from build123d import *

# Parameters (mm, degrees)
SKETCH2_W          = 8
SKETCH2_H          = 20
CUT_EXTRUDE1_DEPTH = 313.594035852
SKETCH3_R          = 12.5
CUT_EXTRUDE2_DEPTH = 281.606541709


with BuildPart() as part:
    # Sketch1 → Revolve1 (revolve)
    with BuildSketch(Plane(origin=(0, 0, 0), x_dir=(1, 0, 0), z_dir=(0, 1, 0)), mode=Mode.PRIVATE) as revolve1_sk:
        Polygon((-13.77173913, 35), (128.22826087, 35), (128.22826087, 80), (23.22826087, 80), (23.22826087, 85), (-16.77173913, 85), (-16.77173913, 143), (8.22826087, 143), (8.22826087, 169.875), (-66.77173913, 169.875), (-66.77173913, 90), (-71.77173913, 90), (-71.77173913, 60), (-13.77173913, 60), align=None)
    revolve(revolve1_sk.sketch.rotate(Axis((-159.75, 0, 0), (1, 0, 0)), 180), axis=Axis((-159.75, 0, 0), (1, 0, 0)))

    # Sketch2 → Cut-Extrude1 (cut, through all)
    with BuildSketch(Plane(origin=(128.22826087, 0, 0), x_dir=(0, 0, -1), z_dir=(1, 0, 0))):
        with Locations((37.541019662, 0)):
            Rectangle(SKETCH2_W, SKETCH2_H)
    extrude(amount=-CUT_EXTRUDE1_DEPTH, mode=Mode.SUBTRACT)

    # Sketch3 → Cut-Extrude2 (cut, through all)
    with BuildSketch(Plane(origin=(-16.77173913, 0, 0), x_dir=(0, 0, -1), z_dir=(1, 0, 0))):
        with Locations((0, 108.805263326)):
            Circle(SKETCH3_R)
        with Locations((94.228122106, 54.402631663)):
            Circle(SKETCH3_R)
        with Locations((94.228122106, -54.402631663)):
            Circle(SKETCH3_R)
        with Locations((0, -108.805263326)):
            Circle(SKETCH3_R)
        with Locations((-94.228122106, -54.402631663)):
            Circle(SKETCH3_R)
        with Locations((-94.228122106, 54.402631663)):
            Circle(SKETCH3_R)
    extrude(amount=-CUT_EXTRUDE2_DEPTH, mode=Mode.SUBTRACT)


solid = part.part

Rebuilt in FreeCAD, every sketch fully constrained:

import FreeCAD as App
import Part
import Sketcher
from FreeCAD import Vector
Q = App.Units.Quantity


def add_polygon(sketch, points):
    """Adds a closed chain of lines whose ends are joined by coincident constraints."""
    first, n = sketch.GeometryCount, len(points)
    for a, b in zip(points, points[1:] + points[:1]):
        sketch.addGeometry(Part.LineSegment(App.Vector(*a, 0), App.Vector(*b, 0)), False)
    for i in range(n):
        sketch.addConstraint(Sketcher.Constraint("Coincident", first + i, 2, first + (i + 1) % n, 1))

doc = App.newDocument("Part")
params = doc.addObject("Spreadsheet::Sheet", "Params")
for row, (alias, value) in enumerate([
    ("sketch1_width", "142 mm"),
    ("sketch1_width2", "105 mm"),
    ("sketch1_width3", "40 mm"),
    ("sketch1_width4", "25 mm"),
    ("sketch1_width5", "75 mm"),
    ("revolution_angle", "360 deg"),
    ("sketch2_width", "20 mm"),
    ("sketch2_height", "8 mm"),
    ("sketch3_diameter", "25 mm"),
], start=1):
    params.set(f"A{row}", alias)
    params.set(f"B{row}", "=" + value)
    params.setAlias(f"B{row}", alias)

body = doc.addObject("PartDesign::Body", "Body")

sketch1 = body.newObject("Sketcher::SketchObject", "Sketch")
sketch1.AttachmentSupport = (doc.getObject("XZ_Plane"), [""])
sketch1.MapMode = "FlatFace"
add_polygon(sketch1, [(-14, -35), (128, -35), (128, -80), (23, -80), (23, -85), (-17, -85), (-17, -143), (8, -143), (8, -170), (-67, -170), (-67, -90), (-72, -90), (-72, -60), (-14, -60)])
sketch1.addConstraint([
    Sketcher.Constraint("Horizontal", 0),
    Sketcher.Constraint("Vertical", 1),
    Sketcher.Constraint("Horizontal", 2),
    Sketcher.Constraint("Vertical", 3),
    Sketcher.Constraint("Horizontal", 4),
    Sketcher.Constraint("Vertical", 5),
    Sketcher.Constraint("Horizontal", 6),
    Sketcher.Constraint("Vertical", 7),
    Sketcher.Constraint("Horizontal", 8),
    Sketcher.Constraint("Vertical", 9),
    Sketcher.Constraint("Horizontal", 10),
    Sketcher.Constraint("Vertical", 11),
    Sketcher.Constraint("Horizontal", 12),
    Sketcher.Constraint("Vertical", 13),
    Sketcher.Constraint("Equal", 10, 3),
    Sketcher.Constraint("Equal", 12, 5),
    Sketcher.Constraint("Equal", 6, 13),
    Sketcher.Constraint("DistanceX", 0, 1, 0, 2, Q("142 mm")),
    Sketcher.Constraint("DistanceX", 2, 2, 2, 1, Q("105 mm")),
    Sketcher.Constraint("DistanceX", 4, 2, 4, 1, Q("40 mm")),
    Sketcher.Constraint("DistanceX", 6, 1, 6, 2, Q("25 mm")),
    Sketcher.Constraint("DistanceX", 8, 2, 8, 1, Q("75 mm")),
    Sketcher.Constraint("DistanceX", 10, 2, 10, 1, Q("5 mm")),
    Sketcher.Constraint("DistanceY", 1, 2, 1, 1, Q("45 mm")),
    Sketcher.Constraint("DistanceY", 11, 1, 11, 2, Q("30 mm")),
    Sketcher.Constraint("DistanceY", 0, 2, -1, 1, Q("35 mm")),
    Sketcher.Constraint("DistanceY", 7, 2, 7, 1, Q("26.875 mm")),
    Sketcher.Constraint("DistanceX", -1, 1, 0, 2, Q("128.228261 mm")),
])
sketch1.setExpression("Constraints[31]", "Params.sketch1_width")
sketch1.setExpression("Constraints[32]", "Params.sketch1_width2")
sketch1.setExpression("Constraints[33]", "Params.sketch1_width3")
sketch1.setExpression("Constraints[34]", "Params.sketch1_width4")
sketch1.setExpression("Constraints[35]", "Params.sketch1_width5")
revolution = body.newObject("PartDesign::Revolution", "Revolution")
revolution.Profile = sketch1
revolution.ReferenceAxis = (sketch1, ["H_Axis"])
revolution.setExpression("Angle", "Params.revolution_angle")

sketch2 = body.newObject("Sketcher::SketchObject", "Sketch001")
sketch2.AttachmentSupport = (doc.getObject("YZ_Plane"), [""])
sketch2.MapMode = "FlatFace"
sketch2.AttachmentOffset = App.Placement(Vector(0, 0, 128.228261), App.Rotation())
add_polygon(sketch2, [(10, -34), (-10, -34), (-10, -42), (10, -42)])
sketch2.addConstraint([
    Sketcher.Constraint("Horizontal", 0),
    Sketcher.Constraint("Vertical", 1),
    Sketcher.Constraint("Horizontal", 2),
    Sketcher.Constraint("Vertical", 3),
    Sketcher.Constraint("DistanceX", 0, 2, 0, 1, Q("20 mm")),
    Sketcher.Constraint("DistanceY", 1, 2, 1, 1, Q("8 mm")),
    Sketcher.Constraint("DistanceX", 0, 2, -1, 1, Q("10 mm")),
    Sketcher.Constraint("DistanceY", 0, 2, -1, 1, Q("33.54102 mm")),
])
sketch2.setExpression("Constraints[8]", "Params.sketch2_width")
sketch2.setExpression("Constraints[9]", "Params.sketch2_height")
pocket1 = body.newObject("PartDesign::Pocket", "Pocket")
pocket1.Profile = sketch2
pocket1.Type = "ThroughAll"

sketch3 = body.newObject("Sketcher::SketchObject", "Sketch002")
sketch3.AttachmentSupport = (doc.getObject("YZ_Plane"), [""])
sketch3.MapMode = "FlatFace"
sketch3.AttachmentOffset = App.Placement(Vector(0, 0, -16.771739), App.Rotation())
sketch3.addGeometry([
    Part.Circle(Vector(109, 0, 0), Vector(0, 0, 1), 12),
    Part.Circle(Vector(54, -94, 0), Vector(0, 0, 1), 12),
    Part.Circle(Vector(-54, -94, 0), Vector(0, 0, 1), 12),
    Part.Circle(Vector(-109, 0, 0), Vector(0, 0, 1), 12),
    Part.Circle(Vector(-54, 94, 0), Vector(0, 0, 1), 12),
    Part.Circle(Vector(54, 94, 0), Vector(0, 0, 1), 12),
], False)
sketch3.addConstraint([
    Sketcher.Constraint("Equal", 0, 1),
    Sketcher.Constraint("Equal", 1, 2),
    Sketcher.Constraint("Equal", 2, 3),
    Sketcher.Constraint("Equal", 3, 4),
    Sketcher.Constraint("Equal", 4, 5),
    Sketcher.Constraint("Symmetric", 0, 3, 3, 3, -1, 1),
    Sketcher.Constraint("Symmetric", 1, 3, 4, 3, -1, 1),
    Sketcher.Constraint("Symmetric", 2, 3, 5, 3, -1, 1),
    Sketcher.Constraint("Symmetric", 1, 3, 2, 3, -2),
    Sketcher.Constraint("PointOnObject", 0, 3, -1),
    Sketcher.Constraint("Diameter", 0, Q("25 mm")),
    Sketcher.Constraint("DistanceX", -1, 1, 1, 3, Q("54.402632 mm")),
    Sketcher.Constraint("DistanceX", 1, 3, 0, 3, Q("54.402632 mm")),
    Sketcher.Constraint("DistanceY", 1, 3, -1, 1, Q("94.228122 mm")),
])
sketch3.setExpression("Constraints[10]", "Params.sketch3_diameter")
pocket2 = body.newObject("PartDesign::Pocket", "Pocket001")
pocket2.Profile = sketch3
pocket2.Type = "ThroughAll"

doc.recompute()
